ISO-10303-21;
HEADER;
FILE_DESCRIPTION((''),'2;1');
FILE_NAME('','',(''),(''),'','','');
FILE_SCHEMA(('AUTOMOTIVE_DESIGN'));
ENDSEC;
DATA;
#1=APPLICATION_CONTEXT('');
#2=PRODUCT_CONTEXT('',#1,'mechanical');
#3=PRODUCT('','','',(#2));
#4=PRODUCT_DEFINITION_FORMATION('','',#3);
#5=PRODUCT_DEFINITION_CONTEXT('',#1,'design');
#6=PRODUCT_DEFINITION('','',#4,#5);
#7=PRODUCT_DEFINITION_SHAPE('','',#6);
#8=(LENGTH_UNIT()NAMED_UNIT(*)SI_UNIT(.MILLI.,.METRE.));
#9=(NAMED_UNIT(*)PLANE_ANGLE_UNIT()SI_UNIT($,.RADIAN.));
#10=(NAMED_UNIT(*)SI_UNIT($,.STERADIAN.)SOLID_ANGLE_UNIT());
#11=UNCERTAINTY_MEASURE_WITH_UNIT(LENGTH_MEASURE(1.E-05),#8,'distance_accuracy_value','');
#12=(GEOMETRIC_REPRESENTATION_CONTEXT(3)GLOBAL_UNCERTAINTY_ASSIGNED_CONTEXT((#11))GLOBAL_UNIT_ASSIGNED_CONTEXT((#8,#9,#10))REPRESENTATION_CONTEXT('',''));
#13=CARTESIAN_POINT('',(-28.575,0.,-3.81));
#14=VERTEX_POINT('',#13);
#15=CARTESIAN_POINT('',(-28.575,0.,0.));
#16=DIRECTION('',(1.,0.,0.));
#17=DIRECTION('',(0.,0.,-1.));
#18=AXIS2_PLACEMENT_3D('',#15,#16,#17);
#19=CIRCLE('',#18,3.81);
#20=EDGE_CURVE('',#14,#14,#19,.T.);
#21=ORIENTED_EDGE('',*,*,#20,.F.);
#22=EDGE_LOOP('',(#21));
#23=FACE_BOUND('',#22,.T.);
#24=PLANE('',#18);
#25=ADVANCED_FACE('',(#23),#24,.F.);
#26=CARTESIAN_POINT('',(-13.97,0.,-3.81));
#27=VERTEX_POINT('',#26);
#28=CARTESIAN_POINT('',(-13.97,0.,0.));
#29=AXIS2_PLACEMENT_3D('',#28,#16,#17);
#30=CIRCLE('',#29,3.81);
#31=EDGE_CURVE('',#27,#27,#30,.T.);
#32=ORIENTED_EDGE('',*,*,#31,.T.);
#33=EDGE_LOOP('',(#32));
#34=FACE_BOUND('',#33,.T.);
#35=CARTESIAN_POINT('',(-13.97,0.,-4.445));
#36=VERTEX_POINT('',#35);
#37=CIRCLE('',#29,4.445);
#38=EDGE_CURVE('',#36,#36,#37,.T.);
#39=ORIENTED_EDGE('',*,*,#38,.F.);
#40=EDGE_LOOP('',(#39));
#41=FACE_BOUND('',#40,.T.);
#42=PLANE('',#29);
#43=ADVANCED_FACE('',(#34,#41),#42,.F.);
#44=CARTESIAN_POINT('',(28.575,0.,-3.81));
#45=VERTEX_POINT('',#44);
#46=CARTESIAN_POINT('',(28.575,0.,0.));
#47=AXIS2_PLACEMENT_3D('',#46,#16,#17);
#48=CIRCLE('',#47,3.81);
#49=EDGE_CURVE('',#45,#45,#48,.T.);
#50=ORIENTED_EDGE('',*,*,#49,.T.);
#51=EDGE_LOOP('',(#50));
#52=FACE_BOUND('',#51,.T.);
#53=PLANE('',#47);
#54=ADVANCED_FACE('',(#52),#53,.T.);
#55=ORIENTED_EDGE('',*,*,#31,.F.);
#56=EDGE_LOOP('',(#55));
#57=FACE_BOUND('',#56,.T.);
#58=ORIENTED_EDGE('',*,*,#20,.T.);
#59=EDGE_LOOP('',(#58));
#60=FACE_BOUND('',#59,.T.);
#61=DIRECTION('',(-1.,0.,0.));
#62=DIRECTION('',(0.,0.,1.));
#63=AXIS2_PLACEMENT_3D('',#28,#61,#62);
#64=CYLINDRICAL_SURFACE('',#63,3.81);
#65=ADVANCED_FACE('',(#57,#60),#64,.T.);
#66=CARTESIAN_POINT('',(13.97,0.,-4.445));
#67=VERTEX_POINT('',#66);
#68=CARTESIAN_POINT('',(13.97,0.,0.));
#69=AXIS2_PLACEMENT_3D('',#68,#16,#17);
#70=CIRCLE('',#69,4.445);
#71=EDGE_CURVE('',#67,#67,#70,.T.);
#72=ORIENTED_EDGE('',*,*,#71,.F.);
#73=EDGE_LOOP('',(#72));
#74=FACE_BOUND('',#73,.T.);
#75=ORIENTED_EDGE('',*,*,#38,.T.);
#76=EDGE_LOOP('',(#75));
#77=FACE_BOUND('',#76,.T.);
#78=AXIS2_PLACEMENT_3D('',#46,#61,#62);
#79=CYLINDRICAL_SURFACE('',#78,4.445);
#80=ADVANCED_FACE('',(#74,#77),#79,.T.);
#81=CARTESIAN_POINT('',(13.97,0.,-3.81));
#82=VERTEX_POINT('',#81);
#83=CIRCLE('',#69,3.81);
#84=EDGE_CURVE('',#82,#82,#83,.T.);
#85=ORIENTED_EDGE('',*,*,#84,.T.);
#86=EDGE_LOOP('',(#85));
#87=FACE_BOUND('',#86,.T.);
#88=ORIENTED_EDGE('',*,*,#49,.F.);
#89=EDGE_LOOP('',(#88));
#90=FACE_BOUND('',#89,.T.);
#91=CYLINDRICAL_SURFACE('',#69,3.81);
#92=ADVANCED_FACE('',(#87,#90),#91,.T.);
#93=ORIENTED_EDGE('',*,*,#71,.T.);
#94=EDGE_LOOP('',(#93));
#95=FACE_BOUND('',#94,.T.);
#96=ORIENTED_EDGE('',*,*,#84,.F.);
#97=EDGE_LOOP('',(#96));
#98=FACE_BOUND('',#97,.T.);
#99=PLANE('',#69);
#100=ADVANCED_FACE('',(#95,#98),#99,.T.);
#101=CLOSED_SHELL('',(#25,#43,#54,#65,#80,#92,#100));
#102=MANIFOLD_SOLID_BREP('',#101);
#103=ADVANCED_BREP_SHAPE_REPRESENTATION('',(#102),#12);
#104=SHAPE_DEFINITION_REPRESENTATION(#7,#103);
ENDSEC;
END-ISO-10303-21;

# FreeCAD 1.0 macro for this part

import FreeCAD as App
import Part
import Sketcher

V = App.Vector
Q = App.Units.Quantity

doc = App.newDocument("Part")
params = doc.addObject("Spreadsheet::Sheet", "Params")
for row, (alias, value) in enumerate([
    ("sketch1_diameter", "0.35 in"),
    ("pad1_length", "2.25 in"),
    ("sketch2_diameter", "0.5 in"),
    ("sketch2_diameter2", "0.3 in"),
    ("pocket1_length", "0.575 in"),
], start=1):
    params.set(f"A{row}", alias)
    params.set(f"B{row}", "=" + value)
    params.setAlias(f"B{row}", alias)

body = doc.addObject("PartDesign::Body", "Body")

# Sketch on YZ plane
sketch1 = doc.addObject("Sketcher::SketchObject", "Sketch")
body.addObject(sketch1)
sketch1.AttachmentSupport = (doc.YZ_Plane, [""])
sketch1.MapMode = "FlatFace"
sketch1.addGeometry(Part.Circle(V(0, 0, 0), V(0, 0, 1), 4.445), False)
sketch1.addConstraint(Sketcher.Constraint("Coincident", 0, 3, -1, 1))
sketch1.addConstraint(Sketcher.Constraint("Diameter", 0, Q("0.35 in")))
sketch1.setExpression("Constraints[1]", "Params.sketch1_diameter")
pad1 = doc.addObject("PartDesign::Pad", "Pad")
body.addObject(pad1)
pad1.Profile = sketch1
pad1.setExpression("Length", "Params.pad1_length")
pad1.Midplane = True

# Sketch on YZ plane
sketch2 = doc.addObject("Sketcher::SketchObject", "Sketch001")
body.addObject(sketch2)
sketch2.AttachmentSupport = (doc.YZ_Plane, [""])
sketch2.MapMode = "FlatFace"
sketch2.AttachmentOffset = App.Placement(V(0, 0, 1.125 * 25.4), App.Rotation())
sketch2.addGeometry(Part.Circle(V(0, 0, 0), V(0, 0, 1), 6.35), False)
sketch2.addGeometry(Part.Circle(V(0, 0, 0), V(0, 0, 1), 3.81), False)
sketch2.addConstraint(Sketcher.Constraint("Coincident", 0, 3, -1, 1))
sketch2.addConstraint(Sketcher.Constraint("Coincident", 1, 3, -1, 1))
sketch2.addConstraint(Sketcher.Constraint("Diameter", 0, Q("0.5 in")))
sketch2.addConstraint(Sketcher.Constraint("Diameter", 1, Q("0.3 in")))
sketch2.setExpression("Constraints[2]", "Params.sketch2_diameter")
sketch2.setExpression("Constraints[3]", "Params.sketch2_diameter2")
pocket1 = doc.addObject("PartDesign::Pocket", "Pocket")
body.addObject(pocket1)
pocket1.Profile = sketch2
pocket1.setExpression("Length", "Params.pocket1_length")
doc.recompute()

mirrored = doc.addObject("PartDesign::Mirrored", "Mirrored")
body.addObject(mirrored)
mirrored.Originals = [pocket1]
mirrored.MirrorPlane = (doc.YZ_Plane, [""])
body.Tip = mirrored

doc.recompute()
